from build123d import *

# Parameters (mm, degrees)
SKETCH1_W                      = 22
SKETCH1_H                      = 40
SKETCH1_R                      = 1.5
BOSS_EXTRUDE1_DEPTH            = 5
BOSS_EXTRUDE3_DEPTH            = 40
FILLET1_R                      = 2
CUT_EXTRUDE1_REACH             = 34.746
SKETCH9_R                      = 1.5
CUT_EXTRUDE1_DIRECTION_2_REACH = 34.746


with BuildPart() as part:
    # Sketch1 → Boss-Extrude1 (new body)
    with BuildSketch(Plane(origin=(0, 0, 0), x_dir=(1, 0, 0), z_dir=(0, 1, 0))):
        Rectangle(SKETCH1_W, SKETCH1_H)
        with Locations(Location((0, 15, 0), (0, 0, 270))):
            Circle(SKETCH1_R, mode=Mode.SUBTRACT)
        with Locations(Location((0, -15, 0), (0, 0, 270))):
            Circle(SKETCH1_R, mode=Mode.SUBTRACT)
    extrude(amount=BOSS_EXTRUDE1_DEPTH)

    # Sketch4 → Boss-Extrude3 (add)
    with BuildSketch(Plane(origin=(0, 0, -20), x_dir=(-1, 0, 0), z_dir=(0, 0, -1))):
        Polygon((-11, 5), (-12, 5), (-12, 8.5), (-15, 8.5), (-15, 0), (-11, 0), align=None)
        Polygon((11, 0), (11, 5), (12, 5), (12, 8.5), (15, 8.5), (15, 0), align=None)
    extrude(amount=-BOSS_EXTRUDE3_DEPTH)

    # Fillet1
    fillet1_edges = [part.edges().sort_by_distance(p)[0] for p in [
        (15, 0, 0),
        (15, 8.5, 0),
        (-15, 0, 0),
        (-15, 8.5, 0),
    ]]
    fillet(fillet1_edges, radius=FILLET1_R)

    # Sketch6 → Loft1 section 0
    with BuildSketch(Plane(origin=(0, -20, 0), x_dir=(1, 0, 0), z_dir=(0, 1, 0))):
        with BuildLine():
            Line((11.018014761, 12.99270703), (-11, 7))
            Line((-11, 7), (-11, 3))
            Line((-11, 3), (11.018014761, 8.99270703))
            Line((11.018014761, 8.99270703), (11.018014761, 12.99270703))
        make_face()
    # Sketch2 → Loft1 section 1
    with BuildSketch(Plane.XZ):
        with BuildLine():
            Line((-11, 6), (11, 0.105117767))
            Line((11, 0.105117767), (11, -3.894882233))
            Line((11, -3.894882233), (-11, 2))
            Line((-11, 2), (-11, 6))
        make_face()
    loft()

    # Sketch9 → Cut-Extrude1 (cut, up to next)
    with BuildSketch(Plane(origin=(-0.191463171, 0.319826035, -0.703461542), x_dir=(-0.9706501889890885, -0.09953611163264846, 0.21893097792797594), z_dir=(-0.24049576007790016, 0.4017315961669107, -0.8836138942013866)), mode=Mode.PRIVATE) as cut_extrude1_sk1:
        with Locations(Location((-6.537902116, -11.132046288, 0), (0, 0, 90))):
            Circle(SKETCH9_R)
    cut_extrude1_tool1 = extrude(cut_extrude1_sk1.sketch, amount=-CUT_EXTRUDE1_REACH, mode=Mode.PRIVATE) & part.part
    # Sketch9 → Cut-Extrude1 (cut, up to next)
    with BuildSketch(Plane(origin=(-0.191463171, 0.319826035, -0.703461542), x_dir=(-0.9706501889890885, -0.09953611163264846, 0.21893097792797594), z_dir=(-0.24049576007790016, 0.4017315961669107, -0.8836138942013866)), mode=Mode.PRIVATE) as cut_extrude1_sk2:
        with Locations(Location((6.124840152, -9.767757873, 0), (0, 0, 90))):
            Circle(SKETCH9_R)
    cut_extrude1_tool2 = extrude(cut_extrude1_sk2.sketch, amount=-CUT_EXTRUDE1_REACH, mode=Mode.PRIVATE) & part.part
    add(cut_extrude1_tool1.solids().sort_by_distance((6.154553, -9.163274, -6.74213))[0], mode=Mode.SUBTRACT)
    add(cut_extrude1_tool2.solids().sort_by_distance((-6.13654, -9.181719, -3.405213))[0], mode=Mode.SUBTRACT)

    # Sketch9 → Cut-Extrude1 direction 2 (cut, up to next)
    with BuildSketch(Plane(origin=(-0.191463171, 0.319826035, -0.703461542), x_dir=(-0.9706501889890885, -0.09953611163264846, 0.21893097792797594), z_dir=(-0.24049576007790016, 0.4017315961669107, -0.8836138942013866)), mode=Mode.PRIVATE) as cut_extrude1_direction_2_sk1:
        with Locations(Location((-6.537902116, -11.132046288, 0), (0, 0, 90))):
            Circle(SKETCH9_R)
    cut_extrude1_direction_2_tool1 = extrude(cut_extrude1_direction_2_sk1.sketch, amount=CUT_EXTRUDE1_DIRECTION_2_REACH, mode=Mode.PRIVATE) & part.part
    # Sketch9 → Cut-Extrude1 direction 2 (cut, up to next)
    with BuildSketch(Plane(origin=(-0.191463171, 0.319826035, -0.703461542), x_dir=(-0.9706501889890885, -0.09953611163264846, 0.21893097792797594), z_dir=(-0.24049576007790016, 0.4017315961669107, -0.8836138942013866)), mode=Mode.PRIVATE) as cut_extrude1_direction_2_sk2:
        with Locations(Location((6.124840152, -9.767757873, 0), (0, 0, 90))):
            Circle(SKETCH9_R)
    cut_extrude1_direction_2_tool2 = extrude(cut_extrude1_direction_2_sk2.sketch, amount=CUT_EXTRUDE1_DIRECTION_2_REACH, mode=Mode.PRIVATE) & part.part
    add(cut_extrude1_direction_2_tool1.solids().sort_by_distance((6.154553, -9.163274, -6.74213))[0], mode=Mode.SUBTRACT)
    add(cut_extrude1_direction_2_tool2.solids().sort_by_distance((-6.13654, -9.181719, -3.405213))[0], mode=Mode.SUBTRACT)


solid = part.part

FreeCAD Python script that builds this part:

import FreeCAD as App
import Part
import Sketcher
Q = App.Units.Quantity


def edges_at(feature, points):
    """Names of the edges that pass closest to the given points."""
    edges = feature.Shape.Edges
    near = lambda p: min(range(len(edges)), key=lambda i: edges[i].distToShape(Part.Vertex(*p))[0])
    return sorted({f"Edge{near(p) + 1}" for p in points})


def add_polygon(sketch, points):
    """Adds a closed chain of lines whose ends are joined by coincident constraints."""
    first, n = sketch.GeometryCount, len(points)
    for a, b in zip(points, points[1:] + points[:1]):
        sketch.addGeometry(Part.LineSegment(App.Vector(*a, 0), App.Vector(*b, 0)), False)
    for i in range(n):
        sketch.addConstraint(Sketcher.Constraint("Coincident", first + i, 2, first + (i + 1) % n, 1))

doc = App.newDocument("Part")
body = doc.addObject("PartDesign::Body", "Body")

sketch1 = body.newObject("Sketcher::SketchObject", "Sketch")
sketch1.AttachmentSupport = (doc.getObject("XZ_Plane"), [""])
sketch1.MapMode = "FlatFace"
add_polygon(sketch1, [(-11, -20), (-11, 20), (11, 20), (11, -20)])
sketch1.addGeometry(Part.Circle(App.Vector(0, 15, 0), App.Vector(0, 0, 1), 1.5), False)
sketch1.addGeometry(Part.Circle(App.Vector(0, -15, 0), App.Vector(0, 0, 1), 1.5), False)
sketch1.addConstraint([
    Sketcher.Constraint("Vertical", 0),
    Sketcher.Constraint("Horizontal", 1),
    Sketcher.Constraint("Vertical", 2),
    Sketcher.Constraint("Horizontal", 3),
    Sketcher.Constraint("Equal", 4, 5),
    Sketcher.Constraint("Symmetric", 4, 3, 5, 3, -1, 1),
    Sketcher.Constraint("Symmetric", 0, 2, 2, 2, -1, 1),
    Sketcher.Constraint("PointOnObject", 4, 3, -2),
    Sketcher.Constraint("Diameter", 4, 3.0),
    Sketcher.Constraint("DistanceX", 1, 1, 1, 2, 22.0),
    Sketcher.Constraint("DistanceY", 0, 1, 0, 2, 40.0),
    Sketcher.Constraint("DistanceY", -1, 1, 4, 3, 15.0),
])
pad1 = body.newObject("PartDesign::Pad", "Pad")
pad1.Profile = sketch1
pad1.Length = 5
pad1.Reversed = True

sketch2 = body.newObject("Sketcher::SketchObject", "Sketch001")
sketch2.AttachmentSupport = (doc.getObject("XY_Plane"), [""])
sketch2.MapMode = "FlatFace"
sketch2.AttachmentOffset = App.Placement(App.Vector(0, 0, -20), App.Rotation())
add_polygon(sketch2, [(11, 5), (12, 5), (12, 8.5), (15, 8.5), (15, 0), (11, 0)])
add_polygon(sketch2, [(-11, 5), (-11, 0), (-15, 0), (-15, 8.5), (-12, 8.5), (-12, 5)])
sketch2.addConstraint([
    Sketcher.Constraint("Horizontal", 0),
    Sketcher.Constraint("Vertical", 1),
    Sketcher.Constraint("Horizontal", 2),
    Sketcher.Constraint("Vertical", 3),
    Sketcher.Constraint("Horizontal", 4),
    Sketcher.Constraint("Vertical", 5),
    Sketcher.Constraint("Vertical", 6),
    Sketcher.Constraint("Horizontal", 7),
    Sketcher.Constraint("Vertical", 8),
    Sketcher.Constraint("Horizontal", 9),
    Sketcher.Constraint("Vertical", 10),
    Sketcher.Constraint("Horizontal", 11),
    Sketcher.Constraint("Symmetric", 4, 2, 6, 2, -1, 1),
    Sketcher.Constraint("Symmetric", 3, 2, 7, 2, -2),
    Sketcher.Constraint("Symmetric", 1, 2, 9, 2, -2),
    Sketcher.Constraint("Horizontal", 5, 2, 10, 2),
    Sketcher.Constraint("DistanceX", 0, 1, 0, 2, 1.0),
    Sketcher.Constraint("DistanceX", 2, 1, 2, 2, 3.0),
    Sketcher.Constraint("DistanceY", 5, 1, 5, 2, 5.0),
    Sketcher.Constraint("DistanceY", 1, 1, 1, 2, 3.5),
    Sketcher.Constraint("DistanceX", -1, 1, 0, 2, 12.0),
])
pad2 = body.newObject("PartDesign::Pad", "Pad001")
pad2.Profile = sketch2
pad2.Length = 40
doc.recompute()

fillet = body.newObject("PartDesign::Fillet", "Fillet")
fillet.Base = (pad2, edges_at(pad2, [
    (15, 0, 0),
    (15, 8.5, 0),
    (-15, 0, 0),
    (-15, 8.5, 0),
]))
fillet.Radius = 2

sketch3 = body.newObject("Sketcher::SketchObject", "Sketch002")
sketch3.AttachmentSupport = (doc.getObject("XZ_Plane"), [""])
sketch3.MapMode = "FlatFace"
sketch3.AttachmentOffset = App.Placement(App.Vector(0, 0, 20), App.Rotation())
add_polygon(sketch3, [(11, -13), (-11, -7), (-11, -3), (11, -9)])
sketch3.addConstraint([
    Sketcher.Constraint("Vertical", 1),
    Sketcher.Constraint("Vertical", 3),
    Sketcher.Constraint("Parallel", 0, 2),
    Sketcher.Constraint("DistanceY", 1, 1, 1, 2, 4.0),
    Sketcher.Constraint("DistanceX", 0, 2, -1, 1, 11.0),
    Sketcher.Constraint("DistanceY", 0, 2, -1, 1, 7.0),
    Sketcher.Constraint("Distance", 0, 22.818973),
    Sketcher.Constraint("DistanceX", -1, 1, 2, 2, 11.018015),
])

sketch4 = body.newObject("Sketcher::SketchObject", "Sketch003")
sketch4.AttachmentSupport = (doc.getObject("XZ_Plane"), [""])
sketch4.MapMode = "FlatFace"
add_polygon(sketch4, [(11, 0.1), (-11, 6), (-11, 2), (11, -3.9)])
sketch4.addConstraint([
    Sketcher.Constraint("Vertical", 1),
    Sketcher.Constraint("Vertical", 3),
    Sketcher.Constraint("Parallel", 0, 2),
    Sketcher.Constraint("DistanceY", 1, 2, 1, 1, 4.0),
    Sketcher.Constraint("Angle", 0, Q("165 deg")),
    Sketcher.Constraint("DistanceX", 0, 2, -1, 1, 11.0),
    Sketcher.Constraint("DistanceY", -1, 1, 0, 2, 6.0),
    Sketcher.Constraint("DistanceX", -1, 1, 2, 2, 11.0),
])

additiveloft = body.newObject("PartDesign::AdditiveLoft", "AdditiveLoft")
additiveloft.Profile = sketch3
additiveloft.Sections = [sketch4]

sketch5 = body.newObject("Sketcher::SketchObject", "Sketch004")
sketch5.Placement = App.Placement(App.Vector(-0.191463, 0.319826, -0.703462), App.Rotation(App.Vector(-0.970650189, -0.099536112, 0.218930978), App.Vector(0, 0.910331965, 0.413878862), App.Vector(-0.24049576, 0.401731596, -0.883613894), "ZXY"))
sketch5.addGeometry(Part.Circle(App.Vector(-6.5, -11.1, 0), App.Vector(0, 0, 1), 1.5), False)
sketch5.addConstraint([
    Sketcher.Constraint("Diameter", 0, 3.0),
    Sketcher.Constraint("DistanceX", 0, 3, -1, 1, 6.537902),
    Sketcher.Constraint("DistanceY", 0, 3, -1, 1, 11.132046),
])
pocket1 = body.newObject("PartDesign::Pocket", "Pocket")
pocket1.Profile = sketch5
pocket1.Type = "UpToFirst"

sketch6 = body.newObject("Sketcher::SketchObject", "Sketch005")
sketch6.Placement = App.Placement(App.Vector(-0.191463, 0.319826, -0.703462), App.Rotation(App.Vector(-0.970650189, -0.099536112, 0.218930978), App.Vector(0, 0.910331965, 0.413878862), App.Vector(-0.24049576, 0.401731596, -0.883613894), "ZXY"))
sketch6.addGeometry(Part.Circle(App.Vector(6.1, -9.8, 0), App.Vector(0, 0, 1), 1.5), False)
sketch6.addConstraint([
    Sketcher.Constraint("Diameter", 0, 3.0),
    Sketcher.Constraint("DistanceX", -1, 1, 0, 3, 6.12484),
    Sketcher.Constraint("DistanceY", 0, 3, -1, 1, 9.767758),
])
pocket2 = body.newObject("PartDesign::Pocket", "Pocket001")
pocket2.Profile = sketch6
pocket2.Type = "UpToFirst"

sketch7 = body.newObject("Sketcher::SketchObject", "Sketch006")
sketch7.Placement = App.Placement(App.Vector(-0.191463, 0.319826, -0.703462), App.Rotation(App.Vector(-0.970650189, -0.099536112, 0.218930978), App.Vector(0, 0.910331965, 0.413878862), App.Vector(-0.24049576, 0.401731596, -0.883613894), "ZXY"))
sketch7.addGeometry(Part.Circle(App.Vector(-6.5, -11.1, 0), App.Vector(0, 0, 1), 1.5), False)
sketch7.addConstraint([
    Sketcher.Constraint("Diameter", 0, 3.0),
    Sketcher.Constraint("DistanceX", 0, 3, -1, 1, 6.537902),
    Sketcher.Constraint("DistanceY", 0, 3, -1, 1, 11.132046),
])
pocket3 = body.newObject("PartDesign::Pocket", "Pocket002")
pocket3.Profile = sketch7
pocket3.Type = "UpToFirst"
pocket3.Reversed = True

sketch8 = body.newObject("Sketcher::SketchObject", "Sketch007")
sketch8.Placement = App.Placement(App.Vector(-0.191463, 0.319826, -0.703462), App.Rotation(App.Vector(-0.970650189, -0.099536112, 0.218930978), App.Vector(0, 0.910331965, 0.413878862), App.Vector(-0.24049576, 0.401731596, -0.883613894), "ZXY"))
sketch8.addGeometry(Part.Circle(App.Vector(6.1, -9.8, 0), App.Vector(0, 0, 1), 1.5), False)
sketch8.addConstraint([
    Sketcher.Constraint("Diameter", 0, 3.0),
    Sketcher.Constraint("DistanceX", -1, 1, 0, 3, 6.12484),
    Sketcher.Constraint("DistanceY", 0, 3, -1, 1, 9.767758),
])
pocket4 = body.newObject("PartDesign::Pocket", "Pocket003")
pocket4.Profile = sketch8
pocket4.Type = "UpToFirst"
pocket4.Reversed = True

doc.recompute()
